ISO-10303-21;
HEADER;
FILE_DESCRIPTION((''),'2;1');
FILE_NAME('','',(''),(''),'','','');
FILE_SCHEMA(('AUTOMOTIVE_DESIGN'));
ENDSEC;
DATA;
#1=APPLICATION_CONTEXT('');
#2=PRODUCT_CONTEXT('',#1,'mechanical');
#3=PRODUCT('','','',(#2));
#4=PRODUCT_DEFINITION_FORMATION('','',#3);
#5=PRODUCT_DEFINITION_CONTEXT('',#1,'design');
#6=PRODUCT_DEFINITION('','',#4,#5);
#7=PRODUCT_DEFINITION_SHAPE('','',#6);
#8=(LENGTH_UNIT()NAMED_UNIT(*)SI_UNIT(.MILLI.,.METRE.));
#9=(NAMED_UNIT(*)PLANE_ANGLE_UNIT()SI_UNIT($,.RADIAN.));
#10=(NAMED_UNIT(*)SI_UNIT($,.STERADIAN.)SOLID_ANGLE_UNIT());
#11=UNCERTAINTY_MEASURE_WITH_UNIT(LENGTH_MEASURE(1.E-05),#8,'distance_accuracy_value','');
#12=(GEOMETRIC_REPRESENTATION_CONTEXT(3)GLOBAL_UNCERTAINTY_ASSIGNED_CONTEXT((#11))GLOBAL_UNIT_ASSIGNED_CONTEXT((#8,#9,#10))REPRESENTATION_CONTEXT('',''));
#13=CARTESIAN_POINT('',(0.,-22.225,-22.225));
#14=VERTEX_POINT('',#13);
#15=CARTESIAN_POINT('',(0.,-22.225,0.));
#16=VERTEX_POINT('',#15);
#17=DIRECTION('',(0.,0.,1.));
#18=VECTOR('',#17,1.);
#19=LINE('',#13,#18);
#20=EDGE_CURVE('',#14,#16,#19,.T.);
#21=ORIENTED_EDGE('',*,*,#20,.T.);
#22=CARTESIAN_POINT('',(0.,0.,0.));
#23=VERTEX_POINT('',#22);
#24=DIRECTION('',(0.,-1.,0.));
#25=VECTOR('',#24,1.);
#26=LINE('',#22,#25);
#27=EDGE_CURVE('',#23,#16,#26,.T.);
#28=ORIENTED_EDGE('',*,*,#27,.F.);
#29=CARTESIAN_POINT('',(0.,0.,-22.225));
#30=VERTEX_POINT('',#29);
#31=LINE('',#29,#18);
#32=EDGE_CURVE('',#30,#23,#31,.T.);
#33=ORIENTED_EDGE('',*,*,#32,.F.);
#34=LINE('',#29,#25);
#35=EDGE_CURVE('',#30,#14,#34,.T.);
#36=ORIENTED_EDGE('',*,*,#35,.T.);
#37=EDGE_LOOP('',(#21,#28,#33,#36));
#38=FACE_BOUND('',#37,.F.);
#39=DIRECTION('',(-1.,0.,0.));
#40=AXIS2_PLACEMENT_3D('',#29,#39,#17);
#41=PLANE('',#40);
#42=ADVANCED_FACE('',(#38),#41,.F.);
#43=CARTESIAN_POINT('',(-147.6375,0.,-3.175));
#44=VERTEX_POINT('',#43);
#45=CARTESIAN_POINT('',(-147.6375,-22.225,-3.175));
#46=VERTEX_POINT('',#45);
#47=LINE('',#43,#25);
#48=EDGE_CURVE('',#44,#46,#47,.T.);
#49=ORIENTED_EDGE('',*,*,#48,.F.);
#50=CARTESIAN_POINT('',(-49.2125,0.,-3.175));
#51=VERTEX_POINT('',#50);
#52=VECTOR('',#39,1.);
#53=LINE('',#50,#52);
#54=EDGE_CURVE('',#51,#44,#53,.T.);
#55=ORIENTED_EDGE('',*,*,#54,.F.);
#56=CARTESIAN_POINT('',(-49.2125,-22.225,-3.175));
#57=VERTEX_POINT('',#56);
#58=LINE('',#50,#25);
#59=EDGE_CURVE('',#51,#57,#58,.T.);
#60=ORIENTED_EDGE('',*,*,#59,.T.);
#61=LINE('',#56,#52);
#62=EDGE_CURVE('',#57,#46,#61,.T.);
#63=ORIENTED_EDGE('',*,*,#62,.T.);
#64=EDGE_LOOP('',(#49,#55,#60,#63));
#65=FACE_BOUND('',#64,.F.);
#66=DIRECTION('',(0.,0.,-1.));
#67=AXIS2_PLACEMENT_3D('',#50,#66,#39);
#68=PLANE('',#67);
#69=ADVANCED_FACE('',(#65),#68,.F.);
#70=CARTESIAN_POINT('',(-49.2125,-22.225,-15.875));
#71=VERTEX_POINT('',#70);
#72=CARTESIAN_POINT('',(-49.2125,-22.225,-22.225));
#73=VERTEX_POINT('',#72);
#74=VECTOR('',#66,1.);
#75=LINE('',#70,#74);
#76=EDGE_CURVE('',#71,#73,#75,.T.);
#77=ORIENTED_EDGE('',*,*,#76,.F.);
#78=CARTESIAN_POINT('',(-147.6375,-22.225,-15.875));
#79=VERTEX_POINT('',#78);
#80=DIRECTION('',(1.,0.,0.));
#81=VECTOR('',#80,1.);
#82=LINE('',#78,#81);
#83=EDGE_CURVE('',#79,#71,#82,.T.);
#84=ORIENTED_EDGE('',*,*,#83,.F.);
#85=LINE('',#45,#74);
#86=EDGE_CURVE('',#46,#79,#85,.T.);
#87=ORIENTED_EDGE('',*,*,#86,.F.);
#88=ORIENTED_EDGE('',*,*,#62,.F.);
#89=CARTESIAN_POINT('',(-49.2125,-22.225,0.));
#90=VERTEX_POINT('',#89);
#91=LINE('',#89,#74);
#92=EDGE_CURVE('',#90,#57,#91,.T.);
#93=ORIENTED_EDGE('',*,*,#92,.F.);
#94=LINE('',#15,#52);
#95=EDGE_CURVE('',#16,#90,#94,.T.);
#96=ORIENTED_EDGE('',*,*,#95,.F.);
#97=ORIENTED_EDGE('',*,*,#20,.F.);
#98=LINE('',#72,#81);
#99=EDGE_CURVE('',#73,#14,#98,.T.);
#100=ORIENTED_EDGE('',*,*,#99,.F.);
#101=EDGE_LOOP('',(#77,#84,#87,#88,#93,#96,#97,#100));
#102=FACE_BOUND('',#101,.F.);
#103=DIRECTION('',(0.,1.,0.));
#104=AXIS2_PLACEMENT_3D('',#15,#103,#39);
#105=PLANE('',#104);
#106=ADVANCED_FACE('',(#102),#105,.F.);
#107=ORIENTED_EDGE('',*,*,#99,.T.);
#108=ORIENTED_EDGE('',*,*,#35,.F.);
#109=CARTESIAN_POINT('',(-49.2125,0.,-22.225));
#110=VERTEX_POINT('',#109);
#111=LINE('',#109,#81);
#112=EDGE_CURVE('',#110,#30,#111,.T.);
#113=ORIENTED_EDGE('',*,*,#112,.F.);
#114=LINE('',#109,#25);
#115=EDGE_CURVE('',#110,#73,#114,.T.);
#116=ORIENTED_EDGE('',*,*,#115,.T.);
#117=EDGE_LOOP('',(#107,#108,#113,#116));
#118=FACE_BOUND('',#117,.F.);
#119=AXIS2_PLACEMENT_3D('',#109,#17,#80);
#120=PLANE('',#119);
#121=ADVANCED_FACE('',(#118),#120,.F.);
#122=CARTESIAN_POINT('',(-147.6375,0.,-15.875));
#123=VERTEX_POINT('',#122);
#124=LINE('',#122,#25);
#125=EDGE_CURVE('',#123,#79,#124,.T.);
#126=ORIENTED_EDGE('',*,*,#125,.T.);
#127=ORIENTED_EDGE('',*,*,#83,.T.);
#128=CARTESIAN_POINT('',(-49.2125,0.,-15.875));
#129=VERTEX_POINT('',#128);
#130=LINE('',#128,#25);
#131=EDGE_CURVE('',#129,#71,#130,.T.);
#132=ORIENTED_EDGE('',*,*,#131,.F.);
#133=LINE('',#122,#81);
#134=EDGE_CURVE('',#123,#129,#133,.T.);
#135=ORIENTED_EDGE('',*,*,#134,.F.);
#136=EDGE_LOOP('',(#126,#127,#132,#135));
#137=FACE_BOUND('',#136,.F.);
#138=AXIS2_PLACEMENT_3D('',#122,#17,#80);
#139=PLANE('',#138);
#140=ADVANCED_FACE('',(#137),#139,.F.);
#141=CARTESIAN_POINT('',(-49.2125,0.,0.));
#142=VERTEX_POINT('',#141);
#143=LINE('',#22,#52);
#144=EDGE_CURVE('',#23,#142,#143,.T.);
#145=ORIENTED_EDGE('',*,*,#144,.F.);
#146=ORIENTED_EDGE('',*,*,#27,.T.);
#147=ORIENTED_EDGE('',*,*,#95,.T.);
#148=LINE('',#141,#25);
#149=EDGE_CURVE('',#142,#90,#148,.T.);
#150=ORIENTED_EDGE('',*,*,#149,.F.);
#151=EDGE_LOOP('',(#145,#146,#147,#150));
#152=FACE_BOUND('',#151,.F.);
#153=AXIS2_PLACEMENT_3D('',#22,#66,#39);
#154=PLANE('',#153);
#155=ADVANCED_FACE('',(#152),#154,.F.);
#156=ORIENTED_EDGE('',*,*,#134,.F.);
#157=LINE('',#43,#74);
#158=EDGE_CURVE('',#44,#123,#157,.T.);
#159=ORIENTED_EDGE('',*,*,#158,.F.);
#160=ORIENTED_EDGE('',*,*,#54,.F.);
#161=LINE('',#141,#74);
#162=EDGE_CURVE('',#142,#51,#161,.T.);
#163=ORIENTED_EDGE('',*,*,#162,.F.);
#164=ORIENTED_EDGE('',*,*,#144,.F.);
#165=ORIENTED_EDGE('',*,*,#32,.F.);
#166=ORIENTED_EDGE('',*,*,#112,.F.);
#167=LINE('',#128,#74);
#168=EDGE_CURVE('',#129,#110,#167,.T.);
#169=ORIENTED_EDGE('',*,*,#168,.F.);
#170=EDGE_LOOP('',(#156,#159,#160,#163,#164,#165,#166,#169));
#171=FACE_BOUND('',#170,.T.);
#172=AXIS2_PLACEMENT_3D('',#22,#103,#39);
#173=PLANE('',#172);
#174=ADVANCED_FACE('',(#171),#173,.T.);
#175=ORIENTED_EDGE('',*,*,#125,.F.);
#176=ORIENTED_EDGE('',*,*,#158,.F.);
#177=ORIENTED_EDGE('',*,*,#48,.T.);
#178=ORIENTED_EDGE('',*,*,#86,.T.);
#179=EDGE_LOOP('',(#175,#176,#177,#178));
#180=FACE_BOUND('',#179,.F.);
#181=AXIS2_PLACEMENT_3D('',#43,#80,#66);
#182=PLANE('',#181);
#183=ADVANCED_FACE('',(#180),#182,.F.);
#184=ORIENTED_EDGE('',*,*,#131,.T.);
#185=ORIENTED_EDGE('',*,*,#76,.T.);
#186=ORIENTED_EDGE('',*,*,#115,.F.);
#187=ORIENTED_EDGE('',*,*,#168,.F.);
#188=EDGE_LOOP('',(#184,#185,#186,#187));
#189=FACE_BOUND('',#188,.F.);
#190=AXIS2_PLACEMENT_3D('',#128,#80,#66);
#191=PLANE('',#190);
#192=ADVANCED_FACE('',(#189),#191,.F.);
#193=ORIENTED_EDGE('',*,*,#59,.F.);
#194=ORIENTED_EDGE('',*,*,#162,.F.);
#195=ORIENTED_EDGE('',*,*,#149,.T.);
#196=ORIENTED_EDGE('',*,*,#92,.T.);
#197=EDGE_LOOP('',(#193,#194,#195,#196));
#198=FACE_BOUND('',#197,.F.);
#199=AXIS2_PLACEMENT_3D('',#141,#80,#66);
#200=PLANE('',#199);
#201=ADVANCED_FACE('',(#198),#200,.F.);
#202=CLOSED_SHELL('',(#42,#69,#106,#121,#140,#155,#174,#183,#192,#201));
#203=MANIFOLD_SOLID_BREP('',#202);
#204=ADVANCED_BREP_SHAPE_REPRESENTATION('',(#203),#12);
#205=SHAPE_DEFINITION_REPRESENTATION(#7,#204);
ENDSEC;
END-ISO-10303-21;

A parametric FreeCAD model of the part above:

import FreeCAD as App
import Part
import Sketcher
from FreeCAD import Vector
Q = App.Units.Quantity


def add_polygon(sketch, points):
    """Adds a closed chain of lines whose ends are joined by coincident constraints."""
    first, n = sketch.GeometryCount, len(points)
    for a, b in zip(points, points[1:] + points[:1]):
        sketch.addGeometry(Part.LineSegment(App.Vector(*a, 0), App.Vector(*b, 0)), False)
    for i in range(n):
        sketch.addConstraint(Sketcher.Constraint("Coincident", first + i, 2, first + (i + 1) % n, 1))

doc = App.newDocument("Part")
body = doc.addObject("PartDesign::Body", "Body")

# Sketch on XZ plane
sketch1 = doc.addObject("Sketcher::SketchObject", "Sketch")
body.addObject(sketch1)
sketch1.AttachmentSupport = (doc.XZ_Plane, [""])
sketch1.MapMode = "FlatFace"
add_polygon(sketch1, [(-49.2, 0), (0, 0), (0, -22.2), (-49.2, -22.2), (-49.2, -15.9), (-147.6, -15.9), (-147.6, -3.2), (-49.2, -3.2)])  # lines 0-7
sketch1.addConstraint(Sketcher.Constraint("Horizontal", 0))
sketch1.addConstraint(Sketcher.Constraint("Vertical", 1))
sketch1.addConstraint(Sketcher.Constraint("Horizontal", 2))
sketch1.addConstraint(Sketcher.Constraint("Vertical", 3))
sketch1.addConstraint(Sketcher.Constraint("Horizontal", 4))
sketch1.addConstraint(Sketcher.Constraint("Vertical", 5))
sketch1.addConstraint(Sketcher.Constraint("Horizontal", 6))
sketch1.addConstraint(Sketcher.Constraint("Vertical", 7))
sketch1.addConstraint(Sketcher.Constraint("Coincident", 0, 2, -1, 1))
sketch1.addConstraint(Sketcher.Constraint("Vertical", 3, 2, 6, 2))
sketch1.addConstraint(Sketcher.Constraint("DistanceX", 4, 2, 4, 1, Q("3.875 in")))
sketch1.addConstraint(Sketcher.Constraint("DistanceY", 1, 2, 1, 1, Q("0.875 in")))
sketch1.addConstraint(Sketcher.Constraint("DistanceY", 2, 2, 5, 2, Q("0.75 in")))
sketch1.addConstraint(Sketcher.Constraint("DistanceY", 5, 1, 5, 2, Q("0.5 in")))
sketch1.addConstraint(Sketcher.Constraint("DistanceX", 4, 2, -1, 1, Q("5.8125 in")))
pad1 = doc.addObject("PartDesign::Pad", "Pad")
body.addObject(pad1)
pad1.Profile = sketch1
pad1.Length = Q("0.875 in")

doc.recompute()
